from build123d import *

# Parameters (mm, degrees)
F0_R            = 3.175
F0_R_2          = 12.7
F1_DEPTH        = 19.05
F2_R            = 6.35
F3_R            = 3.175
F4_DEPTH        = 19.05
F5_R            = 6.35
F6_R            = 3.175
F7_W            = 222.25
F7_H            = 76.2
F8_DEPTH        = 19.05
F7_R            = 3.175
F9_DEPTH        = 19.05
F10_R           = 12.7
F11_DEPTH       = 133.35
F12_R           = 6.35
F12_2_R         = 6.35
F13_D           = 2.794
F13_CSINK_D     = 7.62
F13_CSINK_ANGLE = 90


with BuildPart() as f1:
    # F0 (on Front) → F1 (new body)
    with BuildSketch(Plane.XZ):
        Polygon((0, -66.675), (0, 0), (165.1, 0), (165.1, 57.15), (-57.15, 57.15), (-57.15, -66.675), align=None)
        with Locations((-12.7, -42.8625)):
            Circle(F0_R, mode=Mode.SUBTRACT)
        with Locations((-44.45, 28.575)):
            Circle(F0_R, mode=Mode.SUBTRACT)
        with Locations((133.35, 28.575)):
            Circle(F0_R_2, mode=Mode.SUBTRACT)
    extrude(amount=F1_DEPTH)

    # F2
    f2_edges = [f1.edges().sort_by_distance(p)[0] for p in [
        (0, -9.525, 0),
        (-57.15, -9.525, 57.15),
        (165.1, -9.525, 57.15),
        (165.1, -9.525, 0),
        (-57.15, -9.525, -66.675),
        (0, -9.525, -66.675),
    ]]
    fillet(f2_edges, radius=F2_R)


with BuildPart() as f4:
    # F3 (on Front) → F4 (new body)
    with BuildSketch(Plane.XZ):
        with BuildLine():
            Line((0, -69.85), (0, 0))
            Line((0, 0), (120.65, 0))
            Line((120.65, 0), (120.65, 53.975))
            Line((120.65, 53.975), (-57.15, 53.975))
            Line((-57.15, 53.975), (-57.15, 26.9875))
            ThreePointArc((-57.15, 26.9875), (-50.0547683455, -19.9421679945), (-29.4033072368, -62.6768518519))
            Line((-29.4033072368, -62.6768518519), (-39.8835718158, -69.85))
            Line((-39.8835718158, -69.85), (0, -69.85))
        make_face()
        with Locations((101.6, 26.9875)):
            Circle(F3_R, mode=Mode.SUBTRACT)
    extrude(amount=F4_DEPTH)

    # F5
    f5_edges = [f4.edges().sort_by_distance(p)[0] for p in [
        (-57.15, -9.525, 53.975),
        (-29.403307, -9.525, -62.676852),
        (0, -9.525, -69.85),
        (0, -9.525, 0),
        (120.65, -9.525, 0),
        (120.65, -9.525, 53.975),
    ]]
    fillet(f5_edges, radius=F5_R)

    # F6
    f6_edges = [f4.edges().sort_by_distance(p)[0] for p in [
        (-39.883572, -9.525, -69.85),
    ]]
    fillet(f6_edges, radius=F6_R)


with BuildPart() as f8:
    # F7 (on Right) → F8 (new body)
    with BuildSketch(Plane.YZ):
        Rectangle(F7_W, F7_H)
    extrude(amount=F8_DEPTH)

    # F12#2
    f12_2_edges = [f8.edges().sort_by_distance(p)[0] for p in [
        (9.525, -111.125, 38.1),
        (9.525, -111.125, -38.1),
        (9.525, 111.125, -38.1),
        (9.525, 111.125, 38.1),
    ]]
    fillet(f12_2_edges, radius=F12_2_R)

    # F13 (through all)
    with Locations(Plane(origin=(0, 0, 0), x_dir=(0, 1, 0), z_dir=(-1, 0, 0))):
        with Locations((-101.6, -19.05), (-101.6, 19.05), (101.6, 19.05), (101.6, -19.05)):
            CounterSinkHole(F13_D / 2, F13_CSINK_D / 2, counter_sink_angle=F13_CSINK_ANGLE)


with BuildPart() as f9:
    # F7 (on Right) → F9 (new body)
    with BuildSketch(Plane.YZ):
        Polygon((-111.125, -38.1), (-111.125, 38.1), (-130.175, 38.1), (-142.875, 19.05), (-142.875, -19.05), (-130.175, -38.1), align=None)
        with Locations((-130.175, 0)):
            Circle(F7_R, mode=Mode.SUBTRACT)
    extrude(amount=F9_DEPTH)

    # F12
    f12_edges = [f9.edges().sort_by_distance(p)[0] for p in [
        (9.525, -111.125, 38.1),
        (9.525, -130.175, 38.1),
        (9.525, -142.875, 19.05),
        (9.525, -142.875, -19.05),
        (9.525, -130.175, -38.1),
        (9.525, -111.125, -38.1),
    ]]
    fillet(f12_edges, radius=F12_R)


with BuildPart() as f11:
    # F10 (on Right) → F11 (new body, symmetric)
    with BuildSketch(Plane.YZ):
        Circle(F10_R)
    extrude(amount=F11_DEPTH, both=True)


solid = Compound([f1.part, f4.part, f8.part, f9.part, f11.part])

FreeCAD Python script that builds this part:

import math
import FreeCAD as App
import Part
import Sketcher
Q = App.Units.Quantity


def edges_at(feature, points):
    """Names of the edges that pass closest to the given points."""
    edges = feature.Shape.Edges
    near = lambda p: min(range(len(edges)), key=lambda i: edges[i].distToShape(Part.Vertex(*p))[0])
    return sorted({f"Edge{near(p) + 1}" for p in points})

doc = App.newDocument("Part")
params = doc.addObject("Spreadsheet::Sheet", "Params")
for row, (alias, value) in enumerate([
    ("sketch1_diameter", "1 in"),
    ("sketch1_diameter2", "0.25 in"),
    ("sketch1_width", "6.5 in"),
    ("sketch1_width2", "8.75 in"),
    ("sketch1_height", "2.625 in"),
    ("pad1_length", "0.75 in"),
    ("fillet_radius", "0.25 in"),
    ("sketch2_diameter", "0.25 in"),
    ("sketch2_width", "7 in"),
    ("sketch2_radius", "6.25 in"),
    ("sketch2_length", "0.5 in"),
    ("sketch2_height", "2.75 in"),
    ("pad2_length", "0.75 in"),
    ("fillet2_radius", "0.25 in"),
    ("fillet3_radius", "0.125 in"),
    ("sketch3_height", "3 in"),
    ("sketch3_width", "8.75 in"),
    ("pad3_length", "0.75 in"),
    ("fillet4_radius", "0.25 in"),
    ("sketch4_diameter", "0.11 in"),
    ("hole_diameter", "0.11 in"),
    ("hole_csink_diameter", "0.3 in"),
    ("sketch5_diameter", "0.25 in"),
    ("sketch5_height", "3 in"),
    ("sketch5_height2", "1.5 in"),
    ("sketch5_width", "0.75 in"),
    ("pad4_length", "0.75 in"),
    ("fillet5_radius", "0.25 in"),
    ("sketch6_diameter", "1 in"),
    ("pad5_length", "10.5 in"),
], start=1):
    params.set(f"A{row}", alias)
    params.set(f"B{row}", "=" + value)
    params.setAlias(f"B{row}", alias)

body = doc.addObject("PartDesign::Body", "Body")

# Sketch on XZ plane
sketch1 = body.newObject("Sketcher::SketchObject", "Sketch")
sketch1.AttachmentSupport = (doc.getObject("XZ_Plane"), [""])
sketch1.MapMode = "FlatFace"
sketch1.addGeometry([
    Part.LineSegment(App.Vector(0, -66.675, 0), App.Vector(0, 0, 0)),  # 0
    Part.LineSegment(App.Vector(0, 0, 0), App.Vector(165.1, 0, 0)),  # 1
    Part.LineSegment(App.Vector(165.1, 0, 0), App.Vector(165.1, 57.15, 0)),  # 2
    Part.LineSegment(App.Vector(165.1, 57.15, 0), App.Vector(-57.15, 57.15, 0)),  # 3
    Part.LineSegment(App.Vector(-57.15, 57.15, 0), App.Vector(-57.15, -66.675, 0)),  # 4
    Part.LineSegment(App.Vector(-57.15, -66.675, 0), App.Vector(0, -66.675, 0)),  # 5
    Part.Circle(App.Vector(-12.7, -42.8625, 0), App.Vector(0, 0, 1), 3.175),  # 6
    Part.Circle(App.Vector(-44.45, 28.575, 0), App.Vector(0, 0, 1), 3.175),  # 7
    Part.Circle(App.Vector(133.35, 28.575, 0), App.Vector(0, 0, 1), 12.7),  # 8
], False)
sketch1.addConstraint([
    Sketcher.Constraint("Coincident", 0, 2, 1, 1),
    Sketcher.Constraint("Coincident", 1, 2, 2, 1),
    Sketcher.Constraint("Coincident", 2, 2, 3, 1),
    Sketcher.Constraint("Coincident", 3, 2, 4, 1),
    Sketcher.Constraint("Coincident", 4, 2, 5, 1),
    Sketcher.Constraint("Coincident", 5, 2, 0, 1),
    Sketcher.Constraint("Vertical", 0),
    Sketcher.Constraint("Horizontal", 1),
    Sketcher.Constraint("Vertical", 2),
    Sketcher.Constraint("Horizontal", 3),
    Sketcher.Constraint("Vertical", 4),
    Sketcher.Constraint("Horizontal", 5),
    Sketcher.Constraint("Coincident", 0, 2, -1, 1),
    Sketcher.Constraint("Equal", 6, 7),
    Sketcher.Constraint("Horizontal", 7, 3, 8, 3),
    Sketcher.Constraint("Equal", 5, 2),
    Sketcher.Constraint("Diameter", 8, Q("1 in")),
    Sketcher.Constraint("Diameter", 6, Q("0.25 in")),
    Sketcher.Constraint("DistanceX", 1, 1, 1, 2, Q("6.5 in")),
    Sketcher.Constraint("DistanceX", 7, 3, 8, 3, Q("7 in")),
    Sketcher.Constraint("DistanceX", 6, 3, 1, 2, Q("7 in")),
    Sketcher.Constraint("DistanceX", 3, 2, 3, 1, Q("8.75 in")),
    Sketcher.Constraint("DistanceX", 3, 2, 7, 3, Q("0.5 in")),
    Sketcher.Constraint("DistanceY", 0, 1, 0, 2, Q("2.625 in")),
    Sketcher.Constraint("DistanceY", 4, 2, 7, 3, Q("3.75 in")),
    Sketcher.Constraint("DistanceY", 6, 3, -1, 1, Q("1.6875 in")),
])
sketch1.setExpression("Constraints[16]", "Params.sketch1_diameter")
sketch1.setExpression("Constraints[17]", "Params.sketch1_diameter2")
sketch1.setExpression("Constraints[18]", "Params.sketch1_width")
sketch1.setExpression("Constraints[21]", "Params.sketch1_width2")
sketch1.setExpression("Constraints[23]", "Params.sketch1_height")
pad1 = body.newObject("PartDesign::Pad", "Pad")
pad1.Profile = sketch1
pad1.setExpression("Length", "Params.pad1_length")
doc.recompute()

fillet = body.newObject("PartDesign::Fillet", "Fillet")
fillet.Base = (pad1, edges_at(pad1, [
    (0, -9.525, 0),
    (-57.15, -9.525, 57.15),
    (165.1, -9.525, 57.15),
    (165.1, -9.525, 0),
    (-57.15, -9.525, -66.675),
    (0, -9.525, -66.675),
]))
fillet.setExpression("Radius", "Params.fillet_radius")
body2 = doc.addObject("PartDesign::Body", "Body001")

# Sketch on XZ plane
sketch2 = body2.newObject("Sketcher::SketchObject", "Sketch001")
sketch2.AttachmentSupport = (doc.getObject("XZ_Plane001"), [""])
sketch2.MapMode = "FlatFace"
sketch2.addGeometry([
    Part.LineSegment(App.Vector(0, -69.85, 0), App.Vector(0, 0, 0)),  # 0
    Part.LineSegment(App.Vector(0, 0, 0), App.Vector(120.65, 0, 0)),  # 1
    Part.LineSegment(App.Vector(120.65, 0, 0), App.Vector(120.65, 53.975, 0)),  # 2
    Part.LineSegment(App.Vector(120.65, 53.975, 0), App.Vector(-57.15, 53.975, 0)),  # 3
    Part.LineSegment(App.Vector(-57.15, 53.975, 0), App.Vector(-57.15, 26.9875, 0)),  # 4
    Part.ArcOfCircle(Part.Circle(App.Vector(101.6, 26.9875, 0), App.Vector(0, 0, 1), 158.75), math.radians(180), math.radians(214.389433)),  # 5
    Part.LineSegment(App.Vector(-29.403307, -62.676852, 0), App.Vector(-39.883572, -69.85, 0)),  # 6
    Part.LineSegment(App.Vector(-39.883572, -69.85, 0), App.Vector(0, -69.85, 0)),  # 7
    Part.Circle(App.Vector(101.6, 26.9875, 0), App.Vector(0, 0, 1), 3.175),  # 8
], False)
sketch2.addConstraint([
    Sketcher.Constraint("Coincident", 0, 2, 1, 1),
    Sketcher.Constraint("Coincident", 1, 2, 2, 1),
    Sketcher.Constraint("Coincident", 2, 2, 3, 1),
    Sketcher.Constraint("Coincident", 3, 2, 4, 1),
    Sketcher.Constraint("Tangent", 4, 2, 5, 1),
    Sketcher.Constraint("Coincident", 5, 2, 6, 1),
    Sketcher.Constraint("Coincident", 6, 2, 7, 1),
    Sketcher.Constraint("Coincident", 7, 2, 0, 1),
    Sketcher.Constraint("Vertical", 0),
    Sketcher.Constraint("Horizontal", 1),
    Sketcher.Constraint("Vertical", 2),
    Sketcher.Constraint("Horizontal", 3),
    Sketcher.Constraint("Vertical", 4),
    Sketcher.Constraint("Horizontal", 7),
    Sketcher.Constraint("Coincident", 0, 2, -1, 1),
    Sketcher.Constraint("Coincident", 8, 3, 5, 3),
    Sketcher.Constraint("Diameter", 8, Q("0.25 in")),
    Sketcher.Constraint("DistanceX", 3, 2, 3, 1, Q("7 in")),
    Sketcher.Constraint("Radius", 5, Q("6.25 in")),
    Sketcher.Constraint("DistanceX", -1, 1, 5, 3, Q("4 in")),
    Sketcher.Constraint("Distance", 6, Q("0.5 in")),
    Sketcher.Constraint("DistanceY", 0, 1, 0, 2, Q("2.75 in")),
    Sketcher.Constraint("DistanceY", 2, 1, 2, 2, Q("2.125 in")),
    Sketcher.Constraint("DistanceY", 4, 2, 4, 1, Q("1.0625 in")),
    Sketcher.Constraint("DistanceY", 5, 2, -1, 1, 62.676852),
])
sketch2.setExpression("Constraints[16]", "Params.sketch2_diameter")
sketch2.setExpression("Constraints[17]", "Params.sketch2_width")
sketch2.setExpression("Constraints[18]", "Params.sketch2_radius")
sketch2.setExpression("Constraints[20]", "Params.sketch2_length")
sketch2.setExpression("Constraints[21]", "Params.sketch2_height")
pad2 = body2.newObject("PartDesign::Pad", "Pad001")
pad2.Profile = sketch2
pad2.setExpression("Length", "Params.pad2_length")
doc.recompute()

fillet2 = body2.newObject("PartDesign::Fillet", "Fillet001")
fillet2.Base = (pad2, edges_at(pad2, [
    (-57.15, -9.525, 53.975),
    (-29.403, -9.525, -62.677),
    (0, -9.525, -69.85),
    (0, -9.525, 0),
    (120.65, -9.525, 0),
    (120.65, -9.525, 53.975),
]))
fillet2.setExpression("Radius", "Params.fillet2_radius")
doc.recompute()

fillet3 = body2.newObject("PartDesign::Fillet", "Fillet002")
fillet3.Base = (fillet2, edges_at(fillet2, [(-39.884, -9.525, -69.85)]))
fillet3.setExpression("Radius", "Params.fillet3_radius")
body3 = doc.addObject("PartDesign::Body", "Body002")

# Sketch on YZ plane
sketch3 = body3.newObject("Sketcher::SketchObject", "Sketch002")
sketch3.AttachmentSupport = (doc.getObject("YZ_Plane002"), [""])
sketch3.MapMode = "FlatFace"
sketch3.addGeometry([
    Part.LineSegment(App.Vector(-111.125, 38.1, 0), App.Vector(-111.125, -38.1, 0)),
    Part.LineSegment(App.Vector(-111.125, -38.1, 0), App.Vector(111.125, -38.1, 0)),
    Part.LineSegment(App.Vector(111.125, -38.1, 0), App.Vector(111.125, 38.1, 0)),
    Part.LineSegment(App.Vector(111.125, 38.1, 0), App.Vector(-111.125, 38.1, 0)),
], False)
sketch3.addConstraint([
    Sketcher.Constraint("Coincident", 0, 2, 1, 1),
    Sketcher.Constraint("Coincident", 1, 2, 2, 1),
    Sketcher.Constraint("Coincident", 2, 2, 3, 1),
    Sketcher.Constraint("Coincident", 3, 2, 0, 1),
    Sketcher.Constraint("Vertical", 0),
    Sketcher.Constraint("Horizontal", 1),
    Sketcher.Constraint("Vertical", 2),
    Sketcher.Constraint("Horizontal", 3),
    Sketcher.Constraint("Symmetric", 0, 2, 2, 2, -1, 1),
    Sketcher.Constraint("DistanceY", 0, 2, 0, 1, Q("3 in")),
    Sketcher.Constraint("DistanceX", 1, 1, 1, 2, Q("8.75 in")),
])
sketch3.setExpression("Constraints[9]", "Params.sketch3_height")
sketch3.setExpression("Constraints[10]", "Params.sketch3_width")
pad3 = body3.newObject("PartDesign::Pad", "Pad002")
pad3.Profile = sketch3
pad3.setExpression("Length", "Params.pad3_length")
doc.recompute()

fillet4 = body3.newObject("PartDesign::Fillet", "Fillet003")
fillet4.Base = (pad3, edges_at(pad3, [
    (9.525, -111.125, 38.1),
    (9.525, -111.125, -38.1),
    (9.525, 111.125, -38.1),
    (9.525, 111.125, 38.1),
]))
fillet4.setExpression("Radius", "Params.fillet4_radius")

# Sketch on YZ plane
sketch4 = body3.newObject("Sketcher::SketchObject", "Sketch003")
sketch4.AttachmentSupport = (doc.getObject("YZ_Plane002"), [""])
sketch4.MapMode = "FlatFace"
sketch4.addGeometry([
    Part.Circle(App.Vector(-101.6, 19.05, 0), App.Vector(0, 0, 1), 1.397),
    Part.Circle(App.Vector(-101.6, -19.05, 0), App.Vector(0, 0, 1), 1.397),
    Part.Circle(App.Vector(101.6, -19.05, 0), App.Vector(0, 0, 1), 1.397),
    Part.Circle(App.Vector(101.6, 19.05, 0), App.Vector(0, 0, 1), 1.397),
], False)
sketch4.addConstraint([
    Sketcher.Constraint("Equal", 0, 1),
    Sketcher.Constraint("Equal", 1, 2),
    Sketcher.Constraint("Equal", 2, 3),
    Sketcher.Constraint("Symmetric", 0, 3, 2, 3, -1, 1),
    Sketcher.Constraint("Symmetric", 1, 3, 3, 3, -1, 1),
    Sketcher.Constraint("Symmetric", 1, 3, 2, 3, -2),
    Sketcher.Constraint("Diameter", 0, Q("0.11 in")),
    Sketcher.Constraint("DistanceX", 0, 3, -1, 1, Q("4 in")),
    Sketcher.Constraint("DistanceY", 1, 3, 0, 3, Q("1.5 in")),
])
sketch4.setExpression("Constraints[6]", "Params.sketch4_diameter")
doc.recompute()
hole = body3.newObject("PartDesign::Hole", "Hole")
hole.Profile = sketch4
hole.ThreadType = "None"
hole.setExpression("Diameter", "Params.hole_diameter")
hole.DepthType = "ThroughAll"
hole.HoleCutType = "Countersink"
hole.setExpression("HoleCutDiameter", "Params.hole_csink_diameter")
hole.HoleCutCountersinkAngle = 90
hole.Reversed = True
body4 = doc.addObject("PartDesign::Body", "Body003")

# Sketch on YZ plane
sketch5 = body4.newObject("Sketcher::SketchObject", "Sketch004")
sketch5.AttachmentSupport = (doc.getObject("YZ_Plane003"), [""])
sketch5.MapMode = "FlatFace"
sketch5.addGeometry([
    Part.LineSegment(App.Vector(-111.125, -38.1, 0), App.Vector(-111.125, 38.1, 0)),  # 0
    Part.LineSegment(App.Vector(-111.125, 38.1, 0), App.Vector(-130.175, 38.1, 0)),  # 1
    Part.LineSegment(App.Vector(-130.175, 38.1, 0), App.Vector(-142.875, 19.05, 0)),  # 2
    Part.LineSegment(App.Vector(-142.875, 19.05, 0), App.Vector(-142.875, -19.05, 0)),  # 3
    Part.LineSegment(App.Vector(-142.875, -19.05, 0), App.Vector(-130.175, -38.1, 0)),  # 4
    Part.LineSegment(App.Vector(-130.175, -38.1, 0), App.Vector(-111.125, -38.1, 0)),  # 5
    Part.Circle(App.Vector(-130.175, 0, 0), App.Vector(0, 0, 1), 3.175),  # 6
], False)
sketch5.addConstraint([
    Sketcher.Constraint("Coincident", 0, 2, 1, 1),
    Sketcher.Constraint("Coincident", 1, 2, 2, 1),
    Sketcher.Constraint("Coincident", 2, 2, 3, 1),
    Sketcher.Constraint("Coincident", 3, 2, 4, 1),
    Sketcher.Constraint("Coincident", 4, 2, 5, 1),
    Sketcher.Constraint("Coincident", 5, 2, 0, 1),
    Sketcher.Constraint("Vertical", 0),
    Sketcher.Constraint("Horizontal", 1),
    Sketcher.Constraint("Vertical", 3),
    Sketcher.Constraint("Horizontal", 5),
    Sketcher.Constraint("Symmetric", 1, 2, 4, 2, -1),
    Sketcher.Constraint("PointOnObject", 6, 3, -1),
    Sketcher.Constraint("Vertical", 6, 3, 1, 2),
    Sketcher.Constraint("Equal", 2, 4),
    Sketcher.Constraint("Diameter", 6, Q("0.25 in")),
    Sketcher.Constraint("DistanceY", 0, 1, 0, 2, Q("3 in")),
    Sketcher.Constraint("DistanceY", 3, 2, 3, 1, Q("1.5 in")),
    Sketcher.Constraint("DistanceX", 1, 2, 1, 1, Q("0.75 in")),
    Sketcher.Constraint("DistanceX", 2, 2, 6, 3, Q("0.5 in")),
    Sketcher.Constraint("DistanceX", 6, 3, -1, 1, Q("5.125 in")),
])
sketch5.setExpression("Constraints[14]", "Params.sketch5_diameter")
sketch5.setExpression("Constraints[15]", "Params.sketch5_height")
sketch5.setExpression("Constraints[16]", "Params.sketch5_height2")
sketch5.setExpression("Constraints[17]", "Params.sketch5_width")
pad4 = body4.newObject("PartDesign::Pad", "Pad003")
pad4.Profile = sketch5
pad4.setExpression("Length", "Params.pad4_length")
doc.recompute()

fillet5 = body4.newObject("PartDesign::Fillet", "Fillet004")
fillet5.Base = (pad4, edges_at(pad4, [
    (9.525, -111.125, 38.1),
    (9.525, -130.175, 38.1),
    (9.525, -142.875, 19.05),
    (9.525, -142.875, -19.05),
    (9.525, -130.175, -38.1),
    (9.525, -111.125, -38.1),
]))
fillet5.setExpression("Radius", "Params.fillet5_radius")
body5 = doc.addObject("PartDesign::Body", "Body004")

# Sketch on YZ plane
sketch6 = body5.newObject("Sketcher::SketchObject", "Sketch005")
sketch6.AttachmentSupport = (doc.getObject("YZ_Plane004"), [""])
sketch6.MapMode = "FlatFace"
sketch6.addGeometry(Part.Circle(App.Vector(0, 0, 0), App.Vector(0, 0, 1), 12.7), False)
sketch6.addConstraint([
    Sketcher.Constraint("Coincident", 0, 3, -1, 1),
    Sketcher.Constraint("Diameter", 0, Q("1 in")),
])
sketch6.setExpression("Constraints[1]", "Params.sketch6_diameter")
pad5 = body5.newObject("PartDesign::Pad", "Pad004")
pad5.Profile = sketch6
pad5.setExpression("Length", "Params.pad5_length")
pad5.Midplane = True

doc.recompute()
